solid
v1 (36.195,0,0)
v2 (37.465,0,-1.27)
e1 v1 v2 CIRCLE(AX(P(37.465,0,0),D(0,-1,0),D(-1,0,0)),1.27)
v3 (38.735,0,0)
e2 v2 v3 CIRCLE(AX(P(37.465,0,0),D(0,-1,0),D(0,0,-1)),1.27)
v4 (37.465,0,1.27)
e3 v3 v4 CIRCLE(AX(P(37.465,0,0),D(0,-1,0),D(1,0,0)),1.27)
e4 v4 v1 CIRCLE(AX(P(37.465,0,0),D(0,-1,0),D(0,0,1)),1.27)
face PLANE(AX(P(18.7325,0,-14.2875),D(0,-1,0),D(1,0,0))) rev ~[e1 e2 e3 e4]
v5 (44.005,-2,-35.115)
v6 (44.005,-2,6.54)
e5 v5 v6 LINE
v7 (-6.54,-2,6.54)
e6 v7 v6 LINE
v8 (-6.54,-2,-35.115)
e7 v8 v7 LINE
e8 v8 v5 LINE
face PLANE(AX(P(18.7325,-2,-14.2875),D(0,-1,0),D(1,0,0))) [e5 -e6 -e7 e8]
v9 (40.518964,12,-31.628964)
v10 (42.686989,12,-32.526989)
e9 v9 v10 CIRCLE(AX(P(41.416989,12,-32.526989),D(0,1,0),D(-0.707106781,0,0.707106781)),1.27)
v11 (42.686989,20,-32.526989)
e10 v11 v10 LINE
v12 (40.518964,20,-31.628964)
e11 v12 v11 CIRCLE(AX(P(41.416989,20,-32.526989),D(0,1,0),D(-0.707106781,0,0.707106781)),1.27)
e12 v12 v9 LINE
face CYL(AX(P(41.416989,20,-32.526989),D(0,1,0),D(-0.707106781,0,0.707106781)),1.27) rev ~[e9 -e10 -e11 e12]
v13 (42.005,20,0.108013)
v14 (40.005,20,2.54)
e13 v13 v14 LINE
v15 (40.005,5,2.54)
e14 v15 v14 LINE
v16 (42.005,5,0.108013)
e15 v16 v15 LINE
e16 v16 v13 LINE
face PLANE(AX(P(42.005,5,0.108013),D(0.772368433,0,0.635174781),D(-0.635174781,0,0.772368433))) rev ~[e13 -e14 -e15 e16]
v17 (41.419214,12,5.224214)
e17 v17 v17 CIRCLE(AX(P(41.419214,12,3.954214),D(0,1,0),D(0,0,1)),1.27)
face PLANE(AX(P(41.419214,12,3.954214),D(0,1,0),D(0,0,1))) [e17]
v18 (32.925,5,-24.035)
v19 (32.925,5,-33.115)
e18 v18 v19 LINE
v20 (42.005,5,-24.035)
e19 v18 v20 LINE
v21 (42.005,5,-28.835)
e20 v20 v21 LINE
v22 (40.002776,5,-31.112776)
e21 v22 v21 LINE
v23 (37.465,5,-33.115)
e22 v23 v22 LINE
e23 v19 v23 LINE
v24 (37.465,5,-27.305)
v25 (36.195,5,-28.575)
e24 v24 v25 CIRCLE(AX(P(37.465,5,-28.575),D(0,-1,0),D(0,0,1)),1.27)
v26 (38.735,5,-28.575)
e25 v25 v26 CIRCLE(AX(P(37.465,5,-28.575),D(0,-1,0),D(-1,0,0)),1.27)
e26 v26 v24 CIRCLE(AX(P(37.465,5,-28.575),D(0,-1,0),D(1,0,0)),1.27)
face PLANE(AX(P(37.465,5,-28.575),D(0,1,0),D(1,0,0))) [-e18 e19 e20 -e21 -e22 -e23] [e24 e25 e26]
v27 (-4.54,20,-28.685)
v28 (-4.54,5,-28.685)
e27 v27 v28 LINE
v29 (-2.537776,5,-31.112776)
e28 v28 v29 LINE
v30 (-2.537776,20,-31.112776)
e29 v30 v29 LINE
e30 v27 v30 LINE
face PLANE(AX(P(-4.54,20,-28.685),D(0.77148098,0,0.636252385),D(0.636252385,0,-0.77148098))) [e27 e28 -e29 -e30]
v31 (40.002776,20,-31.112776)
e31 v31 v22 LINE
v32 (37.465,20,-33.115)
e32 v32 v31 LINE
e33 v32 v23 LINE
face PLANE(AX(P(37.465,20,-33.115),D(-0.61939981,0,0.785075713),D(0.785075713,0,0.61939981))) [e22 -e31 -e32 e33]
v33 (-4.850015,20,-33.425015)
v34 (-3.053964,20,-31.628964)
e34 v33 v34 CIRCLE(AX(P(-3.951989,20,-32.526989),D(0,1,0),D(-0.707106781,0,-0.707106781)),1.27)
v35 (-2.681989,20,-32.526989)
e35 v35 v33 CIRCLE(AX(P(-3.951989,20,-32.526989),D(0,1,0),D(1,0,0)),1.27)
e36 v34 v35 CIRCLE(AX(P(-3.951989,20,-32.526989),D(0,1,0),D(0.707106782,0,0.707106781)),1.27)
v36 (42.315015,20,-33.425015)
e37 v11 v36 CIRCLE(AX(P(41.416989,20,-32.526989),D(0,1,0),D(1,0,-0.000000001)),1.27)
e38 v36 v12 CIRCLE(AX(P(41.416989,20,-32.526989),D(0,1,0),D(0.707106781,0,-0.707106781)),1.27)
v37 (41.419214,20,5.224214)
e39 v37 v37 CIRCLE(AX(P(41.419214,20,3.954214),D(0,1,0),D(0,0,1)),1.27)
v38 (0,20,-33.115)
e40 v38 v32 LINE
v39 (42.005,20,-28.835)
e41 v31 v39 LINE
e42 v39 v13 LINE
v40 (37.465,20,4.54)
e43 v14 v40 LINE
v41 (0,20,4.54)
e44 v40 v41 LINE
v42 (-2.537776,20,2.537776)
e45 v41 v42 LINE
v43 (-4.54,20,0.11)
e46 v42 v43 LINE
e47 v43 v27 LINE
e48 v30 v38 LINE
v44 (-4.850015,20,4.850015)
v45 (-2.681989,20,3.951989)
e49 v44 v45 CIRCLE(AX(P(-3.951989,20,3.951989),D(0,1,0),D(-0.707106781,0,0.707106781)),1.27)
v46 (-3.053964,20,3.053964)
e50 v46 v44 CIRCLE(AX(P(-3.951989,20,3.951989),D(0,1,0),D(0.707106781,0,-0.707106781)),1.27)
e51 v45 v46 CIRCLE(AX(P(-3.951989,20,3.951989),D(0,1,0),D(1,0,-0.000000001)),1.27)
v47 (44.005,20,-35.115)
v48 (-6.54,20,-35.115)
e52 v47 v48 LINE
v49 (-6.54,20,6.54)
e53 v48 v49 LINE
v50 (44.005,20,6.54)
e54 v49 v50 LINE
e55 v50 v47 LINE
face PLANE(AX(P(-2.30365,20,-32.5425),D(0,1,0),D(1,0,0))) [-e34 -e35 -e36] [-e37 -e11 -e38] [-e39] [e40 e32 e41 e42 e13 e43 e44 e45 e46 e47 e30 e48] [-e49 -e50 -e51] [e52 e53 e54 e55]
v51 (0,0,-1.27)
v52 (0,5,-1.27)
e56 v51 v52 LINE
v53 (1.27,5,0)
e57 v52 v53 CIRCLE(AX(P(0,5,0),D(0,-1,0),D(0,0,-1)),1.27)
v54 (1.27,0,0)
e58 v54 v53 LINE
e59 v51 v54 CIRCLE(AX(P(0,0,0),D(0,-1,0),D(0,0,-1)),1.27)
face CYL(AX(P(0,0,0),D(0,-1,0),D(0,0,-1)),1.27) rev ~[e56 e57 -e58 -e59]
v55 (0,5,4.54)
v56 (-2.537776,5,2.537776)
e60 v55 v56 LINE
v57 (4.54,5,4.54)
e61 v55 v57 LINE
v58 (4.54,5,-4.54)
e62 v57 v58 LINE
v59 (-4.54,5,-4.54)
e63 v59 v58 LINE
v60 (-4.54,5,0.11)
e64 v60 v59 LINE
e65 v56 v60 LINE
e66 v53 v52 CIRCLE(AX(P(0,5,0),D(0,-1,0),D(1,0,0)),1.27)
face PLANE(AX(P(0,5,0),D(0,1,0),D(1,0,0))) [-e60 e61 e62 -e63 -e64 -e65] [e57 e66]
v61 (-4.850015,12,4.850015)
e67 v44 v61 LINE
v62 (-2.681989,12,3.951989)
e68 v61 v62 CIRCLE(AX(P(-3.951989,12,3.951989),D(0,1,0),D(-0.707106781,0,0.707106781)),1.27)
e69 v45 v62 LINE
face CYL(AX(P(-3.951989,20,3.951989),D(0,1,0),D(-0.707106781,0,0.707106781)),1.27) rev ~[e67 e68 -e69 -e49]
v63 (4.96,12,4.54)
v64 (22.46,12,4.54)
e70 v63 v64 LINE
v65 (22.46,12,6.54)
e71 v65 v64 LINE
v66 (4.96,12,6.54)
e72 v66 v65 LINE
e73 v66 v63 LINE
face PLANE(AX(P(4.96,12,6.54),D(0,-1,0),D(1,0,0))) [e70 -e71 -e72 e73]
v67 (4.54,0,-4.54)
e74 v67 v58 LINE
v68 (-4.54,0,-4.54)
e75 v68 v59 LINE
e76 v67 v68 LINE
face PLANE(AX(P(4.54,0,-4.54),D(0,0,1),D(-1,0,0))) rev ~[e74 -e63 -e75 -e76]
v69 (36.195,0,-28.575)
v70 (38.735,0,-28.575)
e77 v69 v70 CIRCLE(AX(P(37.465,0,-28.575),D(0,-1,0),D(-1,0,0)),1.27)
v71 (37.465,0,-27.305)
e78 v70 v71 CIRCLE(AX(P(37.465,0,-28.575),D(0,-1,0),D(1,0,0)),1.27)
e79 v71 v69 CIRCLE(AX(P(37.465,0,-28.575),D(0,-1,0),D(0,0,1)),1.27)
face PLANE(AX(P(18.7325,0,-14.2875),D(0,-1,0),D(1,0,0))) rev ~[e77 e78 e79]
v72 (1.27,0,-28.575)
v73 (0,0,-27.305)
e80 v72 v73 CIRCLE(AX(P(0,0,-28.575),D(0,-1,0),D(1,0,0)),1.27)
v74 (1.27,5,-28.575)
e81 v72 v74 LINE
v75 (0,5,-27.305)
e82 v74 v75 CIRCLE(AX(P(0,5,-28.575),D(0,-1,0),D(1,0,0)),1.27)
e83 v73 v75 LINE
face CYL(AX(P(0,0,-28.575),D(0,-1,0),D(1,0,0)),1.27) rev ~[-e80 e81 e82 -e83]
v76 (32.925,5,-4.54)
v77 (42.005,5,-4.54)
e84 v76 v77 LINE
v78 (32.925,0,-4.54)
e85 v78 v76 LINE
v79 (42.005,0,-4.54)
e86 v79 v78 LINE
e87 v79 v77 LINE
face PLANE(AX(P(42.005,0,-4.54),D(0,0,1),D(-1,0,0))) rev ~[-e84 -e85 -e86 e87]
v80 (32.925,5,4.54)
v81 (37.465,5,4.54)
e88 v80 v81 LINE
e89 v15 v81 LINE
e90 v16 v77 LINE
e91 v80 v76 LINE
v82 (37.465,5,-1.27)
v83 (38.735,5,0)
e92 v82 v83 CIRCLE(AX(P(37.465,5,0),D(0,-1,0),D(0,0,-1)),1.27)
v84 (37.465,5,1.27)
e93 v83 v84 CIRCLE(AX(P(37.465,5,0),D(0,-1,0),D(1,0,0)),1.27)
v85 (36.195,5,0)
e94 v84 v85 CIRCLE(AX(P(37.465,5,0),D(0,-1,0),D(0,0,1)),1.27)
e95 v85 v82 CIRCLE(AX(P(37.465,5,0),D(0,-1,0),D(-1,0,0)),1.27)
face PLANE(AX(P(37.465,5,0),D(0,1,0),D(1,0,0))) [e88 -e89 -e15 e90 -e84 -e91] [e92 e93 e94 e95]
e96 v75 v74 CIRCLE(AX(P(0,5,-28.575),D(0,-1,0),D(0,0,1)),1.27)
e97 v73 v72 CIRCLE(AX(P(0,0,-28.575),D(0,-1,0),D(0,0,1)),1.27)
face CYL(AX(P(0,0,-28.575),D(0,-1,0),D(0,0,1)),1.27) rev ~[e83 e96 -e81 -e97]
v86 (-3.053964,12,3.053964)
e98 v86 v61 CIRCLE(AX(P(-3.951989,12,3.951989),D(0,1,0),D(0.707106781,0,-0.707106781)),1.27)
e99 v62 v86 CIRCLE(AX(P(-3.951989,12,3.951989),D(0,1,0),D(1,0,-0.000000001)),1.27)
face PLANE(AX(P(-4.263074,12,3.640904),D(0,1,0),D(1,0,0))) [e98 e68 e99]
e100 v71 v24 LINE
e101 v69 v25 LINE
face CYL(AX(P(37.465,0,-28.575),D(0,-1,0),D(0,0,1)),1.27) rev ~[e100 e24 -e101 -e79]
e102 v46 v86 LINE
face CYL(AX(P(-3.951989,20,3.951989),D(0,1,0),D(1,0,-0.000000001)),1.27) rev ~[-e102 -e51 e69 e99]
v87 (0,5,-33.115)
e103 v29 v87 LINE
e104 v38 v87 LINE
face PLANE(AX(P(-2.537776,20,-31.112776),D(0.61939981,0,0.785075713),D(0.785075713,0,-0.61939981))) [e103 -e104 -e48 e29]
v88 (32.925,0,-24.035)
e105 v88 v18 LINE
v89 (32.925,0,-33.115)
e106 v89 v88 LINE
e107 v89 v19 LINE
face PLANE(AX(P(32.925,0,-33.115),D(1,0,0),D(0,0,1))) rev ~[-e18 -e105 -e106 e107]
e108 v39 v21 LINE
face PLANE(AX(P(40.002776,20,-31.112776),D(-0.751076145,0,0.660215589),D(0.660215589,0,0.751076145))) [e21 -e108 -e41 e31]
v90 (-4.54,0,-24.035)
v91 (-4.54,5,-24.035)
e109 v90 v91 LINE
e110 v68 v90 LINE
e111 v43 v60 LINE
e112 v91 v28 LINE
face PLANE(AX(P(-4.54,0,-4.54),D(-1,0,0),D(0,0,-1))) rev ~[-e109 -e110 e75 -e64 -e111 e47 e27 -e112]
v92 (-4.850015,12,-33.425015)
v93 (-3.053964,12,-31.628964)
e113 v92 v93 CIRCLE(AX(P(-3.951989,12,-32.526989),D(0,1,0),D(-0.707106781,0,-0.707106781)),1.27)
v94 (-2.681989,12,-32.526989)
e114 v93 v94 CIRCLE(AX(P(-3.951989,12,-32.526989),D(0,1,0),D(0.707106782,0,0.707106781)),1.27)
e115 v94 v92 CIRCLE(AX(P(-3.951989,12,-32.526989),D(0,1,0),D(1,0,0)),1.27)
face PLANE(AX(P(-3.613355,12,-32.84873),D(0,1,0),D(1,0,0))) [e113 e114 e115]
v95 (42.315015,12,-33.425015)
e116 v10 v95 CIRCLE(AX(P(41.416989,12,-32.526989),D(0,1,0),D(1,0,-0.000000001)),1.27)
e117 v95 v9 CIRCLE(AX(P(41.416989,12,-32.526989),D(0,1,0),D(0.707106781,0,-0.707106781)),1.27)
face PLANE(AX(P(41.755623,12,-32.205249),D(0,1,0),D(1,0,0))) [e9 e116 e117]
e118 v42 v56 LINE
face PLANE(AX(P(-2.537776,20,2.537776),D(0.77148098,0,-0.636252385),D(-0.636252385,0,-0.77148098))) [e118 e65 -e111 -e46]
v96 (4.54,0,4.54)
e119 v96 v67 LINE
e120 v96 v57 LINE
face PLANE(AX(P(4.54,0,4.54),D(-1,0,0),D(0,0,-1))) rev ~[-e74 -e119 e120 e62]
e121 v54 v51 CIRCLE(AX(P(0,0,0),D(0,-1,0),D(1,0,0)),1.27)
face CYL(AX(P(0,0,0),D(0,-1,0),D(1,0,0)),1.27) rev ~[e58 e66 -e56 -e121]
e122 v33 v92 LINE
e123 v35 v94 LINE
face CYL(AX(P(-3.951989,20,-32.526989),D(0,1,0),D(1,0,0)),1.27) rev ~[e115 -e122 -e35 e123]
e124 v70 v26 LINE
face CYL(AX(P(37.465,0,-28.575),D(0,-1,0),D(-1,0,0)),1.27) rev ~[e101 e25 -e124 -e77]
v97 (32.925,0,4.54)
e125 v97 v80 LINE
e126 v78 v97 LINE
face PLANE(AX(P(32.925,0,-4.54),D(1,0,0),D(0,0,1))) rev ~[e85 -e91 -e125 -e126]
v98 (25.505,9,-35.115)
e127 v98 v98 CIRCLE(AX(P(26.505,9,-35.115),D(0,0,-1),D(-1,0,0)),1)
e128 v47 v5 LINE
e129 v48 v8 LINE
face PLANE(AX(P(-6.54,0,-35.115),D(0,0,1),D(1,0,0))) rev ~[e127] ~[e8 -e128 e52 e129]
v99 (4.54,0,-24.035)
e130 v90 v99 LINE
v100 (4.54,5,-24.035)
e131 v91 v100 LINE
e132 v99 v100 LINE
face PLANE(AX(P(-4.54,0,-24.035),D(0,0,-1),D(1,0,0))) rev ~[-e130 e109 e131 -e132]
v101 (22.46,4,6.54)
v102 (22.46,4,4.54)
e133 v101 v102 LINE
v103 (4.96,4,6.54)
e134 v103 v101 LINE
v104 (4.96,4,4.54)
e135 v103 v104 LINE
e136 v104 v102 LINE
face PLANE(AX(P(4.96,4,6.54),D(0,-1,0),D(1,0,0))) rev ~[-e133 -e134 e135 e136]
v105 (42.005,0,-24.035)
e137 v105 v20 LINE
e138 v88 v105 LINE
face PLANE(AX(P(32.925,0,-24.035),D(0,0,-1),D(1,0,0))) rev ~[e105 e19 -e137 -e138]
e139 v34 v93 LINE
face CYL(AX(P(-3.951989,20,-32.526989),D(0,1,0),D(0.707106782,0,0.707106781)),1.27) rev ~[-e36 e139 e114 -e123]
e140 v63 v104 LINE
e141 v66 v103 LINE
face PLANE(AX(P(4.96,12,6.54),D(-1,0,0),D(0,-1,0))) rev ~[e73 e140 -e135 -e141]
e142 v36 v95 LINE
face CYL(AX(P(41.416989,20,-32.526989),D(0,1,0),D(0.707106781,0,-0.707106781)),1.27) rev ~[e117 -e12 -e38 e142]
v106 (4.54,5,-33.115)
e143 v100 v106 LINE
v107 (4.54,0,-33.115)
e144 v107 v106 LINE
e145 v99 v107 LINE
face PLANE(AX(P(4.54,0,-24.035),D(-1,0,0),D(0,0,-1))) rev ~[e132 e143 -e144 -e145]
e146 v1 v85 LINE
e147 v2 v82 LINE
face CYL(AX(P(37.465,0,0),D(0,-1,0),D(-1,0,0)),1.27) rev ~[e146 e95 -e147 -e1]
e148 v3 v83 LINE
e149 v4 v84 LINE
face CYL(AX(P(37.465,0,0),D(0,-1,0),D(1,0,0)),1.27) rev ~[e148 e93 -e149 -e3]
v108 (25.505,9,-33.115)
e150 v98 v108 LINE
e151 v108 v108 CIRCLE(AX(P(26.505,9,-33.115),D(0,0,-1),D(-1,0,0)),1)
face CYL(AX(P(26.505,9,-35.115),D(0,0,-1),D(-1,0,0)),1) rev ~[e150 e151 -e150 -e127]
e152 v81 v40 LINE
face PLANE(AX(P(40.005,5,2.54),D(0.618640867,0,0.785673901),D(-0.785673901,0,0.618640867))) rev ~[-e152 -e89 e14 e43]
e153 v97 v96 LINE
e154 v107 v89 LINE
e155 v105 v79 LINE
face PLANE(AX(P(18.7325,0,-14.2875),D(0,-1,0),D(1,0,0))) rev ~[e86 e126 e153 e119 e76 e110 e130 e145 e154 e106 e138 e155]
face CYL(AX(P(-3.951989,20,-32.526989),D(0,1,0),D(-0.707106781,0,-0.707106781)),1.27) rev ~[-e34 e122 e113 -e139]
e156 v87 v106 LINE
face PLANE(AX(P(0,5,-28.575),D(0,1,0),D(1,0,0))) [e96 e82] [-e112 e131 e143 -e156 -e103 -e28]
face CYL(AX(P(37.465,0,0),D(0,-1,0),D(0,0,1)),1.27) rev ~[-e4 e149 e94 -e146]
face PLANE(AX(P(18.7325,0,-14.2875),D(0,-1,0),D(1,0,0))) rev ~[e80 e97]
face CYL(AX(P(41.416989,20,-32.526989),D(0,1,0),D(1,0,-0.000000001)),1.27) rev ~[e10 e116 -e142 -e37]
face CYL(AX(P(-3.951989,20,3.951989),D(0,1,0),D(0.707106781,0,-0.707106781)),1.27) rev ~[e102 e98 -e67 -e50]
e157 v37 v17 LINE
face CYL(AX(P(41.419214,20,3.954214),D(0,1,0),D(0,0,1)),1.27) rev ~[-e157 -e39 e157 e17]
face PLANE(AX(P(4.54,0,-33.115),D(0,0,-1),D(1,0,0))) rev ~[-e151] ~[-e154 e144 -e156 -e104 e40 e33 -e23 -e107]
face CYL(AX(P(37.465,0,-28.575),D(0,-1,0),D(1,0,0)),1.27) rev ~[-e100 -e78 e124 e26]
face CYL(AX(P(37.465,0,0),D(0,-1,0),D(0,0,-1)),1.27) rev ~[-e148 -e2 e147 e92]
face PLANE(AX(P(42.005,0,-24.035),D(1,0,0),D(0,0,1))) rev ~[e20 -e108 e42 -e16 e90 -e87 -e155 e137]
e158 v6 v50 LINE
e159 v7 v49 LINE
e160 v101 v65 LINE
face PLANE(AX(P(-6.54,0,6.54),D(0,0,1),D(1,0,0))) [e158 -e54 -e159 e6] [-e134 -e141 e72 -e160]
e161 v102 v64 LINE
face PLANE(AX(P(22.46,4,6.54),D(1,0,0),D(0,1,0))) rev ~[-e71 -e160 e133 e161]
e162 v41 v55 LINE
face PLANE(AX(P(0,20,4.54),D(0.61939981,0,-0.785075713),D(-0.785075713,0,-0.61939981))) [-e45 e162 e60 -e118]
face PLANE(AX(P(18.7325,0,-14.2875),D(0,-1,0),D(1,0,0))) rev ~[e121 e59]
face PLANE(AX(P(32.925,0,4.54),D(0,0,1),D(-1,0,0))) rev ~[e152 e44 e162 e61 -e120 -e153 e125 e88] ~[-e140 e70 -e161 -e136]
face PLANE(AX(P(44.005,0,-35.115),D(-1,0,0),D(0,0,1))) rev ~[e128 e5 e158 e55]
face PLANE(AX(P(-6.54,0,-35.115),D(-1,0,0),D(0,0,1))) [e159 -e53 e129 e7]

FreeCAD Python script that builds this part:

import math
import FreeCAD as App
import Part
import Sketcher

V = App.Vector

doc = App.newDocument("Part")
body = doc.addObject("PartDesign::Body", "Body")

sketch1 = doc.addObject("Sketcher::SketchObject", "Sketch")
body.addObject(sketch1)
sketch1.AttachmentSupport = (doc.XZ_Plane, [""])
sketch1.MapMode = "FlatFace"
sketch1.addGeometry([
    Part.LineSegment(V(44, -35.1, 0), V(-6.5, -35.1, 0)),
    Part.LineSegment(V(-6.5, -35.1, 0), V(-6.5, 6.5, 0)),
    Part.LineSegment(V(-6.5, 6.5, 0), V(44, 6.5, 0)),
    Part.LineSegment(V(44, 6.5, 0), V(44, -35.1, 0)),
    Part.LineSegment(V(42, -24, 0), V(42, -4.5, 0)),
    Part.LineSegment(V(42, -4.5, 0), V(32.9, -4.5, 0)),
    Part.LineSegment(V(32.9, -4.5, 0), V(32.9, 4.5, 0)),
    Part.LineSegment(V(32.9, 4.5, 0), V(4.5, 4.5, 0)),
    Part.LineSegment(V(4.5, 4.5, 0), V(4.5, -4.5, 0)),
    Part.LineSegment(V(4.5, -4.5, 0), V(-4.5, -4.5, 0)),
    Part.LineSegment(V(-4.5, -4.5, 0), V(-4.5, -24, 0)),
    Part.LineSegment(V(-4.5, -24, 0), V(4.5, -24, 0)),
    Part.LineSegment(V(4.5, -24, 0), V(4.5, -33.1, 0)),
    Part.LineSegment(V(4.5, -33.1, 0), V(32.9, -33.1, 0)),
    Part.LineSegment(V(32.9, -33.1, 0), V(32.9, -24, 0)),
    Part.LineSegment(V(32.9, -24, 0), V(42, -24, 0)),
    Part.ArcOfCircle(Part.Circle(V(37.5, 0, 0), V(0, 0, 1), 1.3), math.radians(0), math.radians(90)),
    Part.ArcOfCircle(Part.Circle(V(37.5, 0, 0), V(0, 0, 1), 1.3), math.radians(90), math.radians(180)),
    Part.ArcOfCircle(Part.Circle(V(37.5, 0, 0), V(0, 0, 1), 1.3), math.radians(180), math.radians(270)),
    Part.ArcOfCircle(Part.Circle(V(37.5, 0, 0), V(0, 0, 1), 1.3), math.radians(-90), math.radians(0)),
    Part.ArcOfCircle(Part.Circle(V(37.5, -28.6, 0), V(0, 0, 1), 1.3), math.radians(0), math.radians(90)),
    Part.ArcOfCircle(Part.Circle(V(37.5, -28.6, 0), V(0, 0, 1), 1.3), math.radians(90), math.radians(180)),
    Part.ArcOfCircle(Part.Circle(V(37.5, -28.6, 0), V(0, 0, 1), 1.3), math.radians(180), math.radians(360)),
    Part.ArcOfCircle(Part.Circle(V(0, -28.6, 0), V(0, 0, 1), 1.3), math.radians(90), math.radians(360)),
    Part.ArcOfCircle(Part.Circle(V(0, -28.6, 0), V(0, 0, 1), 1.3), math.radians(0), math.radians(90)),
    Part.ArcOfCircle(Part.Circle(V(0, 0, 0), V(0, 0, 1), 1.3), math.radians(0), math.radians(270)),
    Part.ArcOfCircle(Part.Circle(V(0, 0, 0), V(0, 0, 1), 1.3), math.radians(-90), math.radians(0)),
], False)
sketch1.addConstraint([
    Sketcher.Constraint("Coincident", 0, 2, 1, 1),
    Sketcher.Constraint("Coincident", 1, 2, 2, 1),
    Sketcher.Constraint("Coincident", 2, 2, 3, 1),
    Sketcher.Constraint("Coincident", 3, 2, 0, 1),
    Sketcher.Constraint("Coincident", 4, 2, 5, 1),
    Sketcher.Constraint("Coincident", 5, 2, 6, 1),
    Sketcher.Constraint("Coincident", 6, 2, 7, 1),
    Sketcher.Constraint("Coincident", 7, 2, 8, 1),
    Sketcher.Constraint("Coincident", 8, 2, 9, 1),
    Sketcher.Constraint("Coincident", 9, 2, 10, 1),
    Sketcher.Constraint("Coincident", 10, 2, 11, 1),
    Sketcher.Constraint("Coincident", 11, 2, 12, 1),
    Sketcher.Constraint("Coincident", 12, 2, 13, 1),
    Sketcher.Constraint("Coincident", 13, 2, 14, 1),
    Sketcher.Constraint("Coincident", 14, 2, 15, 1),
    Sketcher.Constraint("Coincident", 15, 2, 4, 1),
    Sketcher.Constraint("Tangent", 16, 2, 17, 1),
    Sketcher.Constraint("Tangent", 17, 2, 18, 1),
    Sketcher.Constraint("Tangent", 18, 2, 19, 1),
    Sketcher.Constraint("Tangent", 19, 2, 16, 1),
    Sketcher.Constraint("Tangent", 20, 2, 21, 1),
    Sketcher.Constraint("Tangent", 21, 2, 22, 1),
    Sketcher.Constraint("Tangent", 22, 2, 20, 1),
    Sketcher.Constraint("Tangent", 23, 1, 24, 2),
    Sketcher.Constraint("Coincident", 24, 1, 23, 2),
    Sketcher.Constraint("Tangent", 25, 1, 26, 2),
    Sketcher.Constraint("Coincident", 26, 1, 25, 2),
    Sketcher.Constraint("Horizontal", 0),
    Sketcher.Constraint("Vertical", 1),
    Sketcher.Constraint("Horizontal", 2),
    Sketcher.Constraint("Vertical", 3),
    Sketcher.Constraint("Vertical", 4),
    Sketcher.Constraint("Horizontal", 5),
    Sketcher.Constraint("Vertical", 6),
    Sketcher.Constraint("Horizontal", 7),
    Sketcher.Constraint("Vertical", 8),
    Sketcher.Constraint("Horizontal", 9),
    Sketcher.Constraint("Vertical", 10),
    Sketcher.Constraint("Horizontal", 11),
    Sketcher.Constraint("Vertical", 12),
    Sketcher.Constraint("Horizontal", 13),
    Sketcher.Constraint("Vertical", 14),
    Sketcher.Constraint("Horizontal", 15),
    Sketcher.Constraint("Coincident", 25, 3, -1, 1),
    Sketcher.Constraint("Equal", 16, 17),
    Sketcher.Constraint("Equal", 19, 20),
    Sketcher.Constraint("Equal", 22, 23),
    Sketcher.Constraint("Equal", 24, 25),
    Sketcher.Constraint("Symmetric", 7, 2, 9, 2, -1, 1),
    Sketcher.Constraint("Symmetric", 16, 2, 18, 2, -1),
    Sketcher.Constraint("PointOnObject", 23, 3, -2),
    Sketcher.Constraint("PointOnObject", 17, 2, -1),
    Sketcher.Constraint("PointOnObject", 19, 2, -1),
    Sketcher.Constraint("PointOnObject", 23, 1, -2),
    Sketcher.Constraint("PointOnObject", 25, 1, -1),
    Sketcher.Constraint("PointOnObject", 26, 1, -2),
    Sketcher.Constraint("Horizontal", 22, 3, 23, 3),
    Sketcher.Constraint("Horizontal", 5, 2, 8, 2),
    Sketcher.Constraint("Horizontal", 11, 2, 14, 2),
    Sketcher.Constraint("Horizontal", 24, 3, 21, 2),
    Sketcher.Constraint("Horizontal", 21, 2, 22, 2),
    Sketcher.Constraint("Horizontal", 22, 2, 24, 1),
    Sketcher.Constraint("Vertical", 19, 3, 20, 3),
    Sketcher.Constraint("Vertical", 8, 2, 11, 2),
    Sketcher.Constraint("Vertical", 6, 2, 13, 2),
    Sketcher.Constraint("Vertical", 22, 3, 16, 2),
    Sketcher.Constraint("Vertical", 18, 2, 20, 2),
    Sketcher.Constraint("Equal", 5, 9),
    Sketcher.Constraint("Equal", 15, 6),
    Sketcher.Constraint("Equal", 8, 12),
    Sketcher.Constraint("Radius", 16, 1.27),
    Sketcher.Constraint("DistanceX", 4, 2, 2, 2, 2.0),
    Sketcher.Constraint("DistanceY", 7, 2, 1, 2, 2.0),
    Sketcher.Constraint("DistanceX", 1, 2, 9, 2, 2.0),
    Sketcher.Constraint("DistanceY", 0, 2, 12, 2, 2.0),
    Sketcher.Constraint("DistanceX", 5, 2, 5, 1, 9.08),
    Sketcher.Constraint("DistanceX", 0, 2, 0, 1, 50.545),
    Sketcher.Constraint("DistanceY", 1, 1, 1, 2, 41.655),
    Sketcher.Constraint("DistanceY", 0, 2, 23, 3, 6.54),
    Sketcher.Constraint("DistanceX", 16, 3, 2, 2, 6.54),
])
pad1 = doc.addObject("PartDesign::Pad", "Pad")
body.addObject(pad1)
pad1.Profile = sketch1
pad1.Length = 20
pad1.Reversed = True

sketch2 = doc.addObject("Sketcher::SketchObject", "Sketch001")
body.addObject(sketch2)
sketch2.AttachmentSupport = (doc.XZ_Plane, [""])
sketch2.MapMode = "FlatFace"
sketch2.AttachmentOffset = App.Placement(V(0, 0, -20), App.Rotation())
sketch2.addGeometry([
    Part.LineSegment(V(33, -33, 0), V(33, -24, 0)),
    Part.LineSegment(V(33, -24, 0), V(42, -24, 0)),
    Part.LineSegment(V(42, -24, 0), V(42, -33, 0)),
    Part.LineSegment(V(42, -33, 0), V(33, -33, 0)),
], False)
sketch2.addConstraint([
    Sketcher.Constraint("Coincident", 0, 2, 1, 1),
    Sketcher.Constraint("Coincident", 1, 2, 2, 1),
    Sketcher.Constraint("Coincident", 2, 2, 3, 1),
    Sketcher.Constraint("Coincident", 3, 2, 0, 1),
    Sketcher.Constraint("Vertical", 0),
    Sketcher.Constraint("Horizontal", 1),
    Sketcher.Constraint("Vertical", 2),
    Sketcher.Constraint("Horizontal", 3),
    Sketcher.Constraint("Equal", 3, 0),
    Sketcher.Constraint("DistanceX", 1, 1, 1, 2, 9.08),
    Sketcher.Constraint("DistanceX", -1, 1, 0, 2, 32.925),
    Sketcher.Constraint("DistanceY", 0, 2, -1, 1, 24.035),
])
pocket1 = doc.addObject("PartDesign::Pocket", "Pocket")
body.addObject(pocket1)
pocket1.Profile = sketch2
pocket1.Length = 15
pocket1.Reversed = True

sketch3 = doc.addObject("Sketcher::SketchObject", "Sketch002")
body.addObject(sketch3)
sketch3.AttachmentSupport = (doc.XZ_Plane, [""])
sketch3.MapMode = "FlatFace"
sketch3.AttachmentOffset = App.Placement(V(0, 0, -20), App.Rotation())
sketch3.addGeometry([
    Part.LineSegment(V(-5, -33, 0), V(-5, -24, 0)),
    Part.LineSegment(V(-5, -24, 0), V(5, -24, 0)),
    Part.LineSegment(V(5, -24, 0), V(5, -33, 0)),
    Part.LineSegment(V(5, -33, 0), V(-5, -33, 0)),
], False)
sketch3.addConstraint([
    Sketcher.Constraint("Coincident", 0, 2, 1, 1),
    Sketcher.Constraint("Coincident", 1, 2, 2, 1),
    Sketcher.Constraint("Coincident", 2, 2, 3, 1),
    Sketcher.Constraint("Coincident", 3, 2, 0, 1),
    Sketcher.Constraint("Vertical", 0),
    Sketcher.Constraint("Horizontal", 1),
    Sketcher.Constraint("Vertical", 2),
    Sketcher.Constraint("Horizontal", 3),
    Sketcher.Constraint("Equal", 3, 0),
    Sketcher.Constraint("DistanceX", 1, 1, 1, 2, 9.08),
    Sketcher.Constraint("DistanceX", 0, 2, -1, 1, 4.54),
    Sketcher.Constraint("DistanceY", 0, 2, -1, 1, 24.035),
])
pocket2 = doc.addObject("PartDesign::Pocket", "Pocket001")
body.addObject(pocket2)
pocket2.Profile = sketch3
pocket2.Length = 15
pocket2.Reversed = True

sketch4 = doc.addObject("Sketcher::SketchObject", "Sketch003")
body.addObject(sketch4)
sketch4.AttachmentSupport = (doc.XZ_Plane, [""])
sketch4.MapMode = "FlatFace"
sketch4.AttachmentOffset = App.Placement(V(0, 0, -20), App.Rotation())
sketch4.addGeometry([
    Part.LineSegment(V(33, -5, 0), V(33, 5, 0)),
    Part.LineSegment(V(33, 5, 0), V(42, 5, 0)),
    Part.LineSegment(V(42, 5, 0), V(42, -5, 0)),
    Part.LineSegment(V(42, -5, 0), V(33, -5, 0)),
], False)
sketch4.addConstraint([
    Sketcher.Constraint("Coincident", 0, 2, 1, 1),
    Sketcher.Constraint("Coincident", 1, 2, 2, 1),
    Sketcher.Constraint("Coincident", 2, 2, 3, 1),
    Sketcher.Constraint("Coincident", 3, 2, 0, 1),
    Sketcher.Constraint("Vertical", 0),
    Sketcher.Constraint("Horizontal", 1),
    Sketcher.Constraint("Vertical", 2),
    Sketcher.Constraint("Horizontal", 3),
    Sketcher.Constraint("Equal", 3, 0),
    Sketcher.Constraint("DistanceX", 1, 1, 1, 2, 9.08),
    Sketcher.Constraint("DistanceY", -1, 1, 0, 2, 4.54),
    Sketcher.Constraint("DistanceX", -1, 1, 0, 2, 32.925),
])
pocket3 = doc.addObject("PartDesign::Pocket", "Pocket002")
body.addObject(pocket3)
pocket3.Profile = sketch4
pocket3.Length = 15
pocket3.Reversed = True

sketch5 = doc.addObject("Sketcher::SketchObject", "Sketch004")
body.addObject(sketch5)
sketch5.AttachmentSupport = (doc.XZ_Plane, [""])
sketch5.MapMode = "FlatFace"
sketch5.AttachmentOffset = App.Placement(V(0, 0, -20), App.Rotation())
sketch5.addGeometry([
    Part.LineSegment(V(-5, -5, 0), V(-5, 5, 0)),
    Part.LineSegment(V(-5, 5, 0), V(5, 5, 0)),
    Part.LineSegment(V(5, 5, 0), V(5, -5, 0)),
    Part.LineSegment(V(5, -5, 0), V(-5, -5, 0)),
], False)
sketch5.addConstraint([
    Sketcher.Constraint("Coincident", 0, 2, 1, 1),
    Sketcher.Constraint("Coincident", 1, 2, 2, 1),
    Sketcher.Constraint("Coincident", 2, 2, 3, 1),
    Sketcher.Constraint("Coincident", 3, 2, 0, 1),
    Sketcher.Constraint("Vertical", 0),
    Sketcher.Constraint("Horizontal", 1),
    Sketcher.Constraint("Vertical", 2),
    Sketcher.Constraint("Horizontal", 3),
    Sketcher.Constraint("Symmetric", 0, 2, 2, 2, -1, 1),
    Sketcher.Constraint("Equal", 3, 0),
    Sketcher.Constraint("DistanceX", 1, 1, 1, 2, 9.08),
])
pocket4 = doc.addObject("PartDesign::Pocket", "Pocket003")
body.addObject(pocket4)
pocket4.Profile = sketch5
pocket4.Length = 15
pocket4.Reversed = True

sketch6 = doc.addObject("Sketcher::SketchObject", "Sketch005")
body.addObject(sketch6)
sketch6.AttachmentSupport = (doc.XZ_Plane, [""])
sketch6.MapMode = "FlatFace"
sketch6.addGeometry([
    Part.LineSegment(V(-7, 7, 0), V(-7, -35, 0)),
    Part.LineSegment(V(-7, -35, 0), V(44, -35, 0)),
    Part.LineSegment(V(44, -35, 0), V(44, 7, 0)),
    Part.LineSegment(V(44, 7, 0), V(-7, 7, 0)),
], False)
sketch6.addConstraint([
    Sketcher.Constraint("Coincident", 0, 2, 1, 1),
    Sketcher.Constraint("Coincident", 1, 2, 2, 1),
    Sketcher.Constraint("Coincident", 2, 2, 3, 1),
    Sketcher.Constraint("Coincident", 3, 2, 0, 1),
    Sketcher.Constraint("Vertical", 0),
    Sketcher.Constraint("Horizontal", 1),
    Sketcher.Constraint("Vertical", 2),
    Sketcher.Constraint("Horizontal", 3),
    Sketcher.Constraint("DistanceX", 1, 1, 1, 2, 50.545),
    Sketcher.Constraint("DistanceY", 0, 2, 0, 1, 41.655),
    Sketcher.Constraint("DistanceX", 0, 2, -1, 1, 6.54),
    Sketcher.Constraint("DistanceY", -1, 1, 2, 2, 6.54),
])
pad2 = doc.addObject("PartDesign::Pad", "Pad001")
body.addObject(pad2)
pad2.Profile = sketch6
pad2.Length = 2

sketch7 = doc.addObject("Sketcher::SketchObject", "Sketch006")
body.addObject(sketch7)
sketch7.AttachmentSupport = (doc.XY_Plane, [""])
sketch7.MapMode = "FlatFace"
sketch7.AttachmentOffset = App.Placement(V(0, 0, 6.54), App.Rotation())
sketch7.addGeometry([
    Part.LineSegment(V(5, 12, 0), V(5, 4, 0)),
    Part.LineSegment(V(5, 4, 0), V(22, 4, 0)),
    Part.LineSegment(V(22, 4, 0), V(22, 12, 0)),
    Part.LineSegment(V(22, 12, 0), V(5, 12, 0)),
], False)
sketch7.addConstraint([
    Sketcher.Constraint("Coincident", 0, 2, 1, 1),
    Sketcher.Constraint("Coincident", 1, 2, 2, 1),
    Sketcher.Constraint("Coincident", 2, 2, 3, 1),
    Sketcher.Constraint("Coincident", 3, 2, 0, 1),
    Sketcher.Constraint("Vertical", 0),
    Sketcher.Constraint("Horizontal", 1),
    Sketcher.Constraint("Vertical", 2),
    Sketcher.Constraint("Horizontal", 3),
    Sketcher.Constraint("DistanceY", 0, 2, 0, 1, 8.0),
    Sketcher.Constraint("DistanceX", 1, 1, 1, 2, 17.5),
    Sketcher.Constraint("DistanceY", -1, 1, 0, 2, 4.0),
    Sketcher.Constraint("DistanceX", -1, 1, 0, 2, 4.96),
])
pocket5 = doc.addObject("PartDesign::Pocket", "Pocket004")
body.addObject(pocket5)
pocket5.Profile = sketch7
pocket5.Length = 10

sketch8 = doc.addObject("Sketcher::SketchObject", "Sketch007")
body.addObject(sketch8)
sketch8.AttachmentSupport = (doc.XZ_Plane, [""])
sketch8.MapMode = "FlatFace"
sketch8.AttachmentOffset = App.Placement(V(0, 0, -5), App.Rotation())
sketch8.addGeometry([
    Part.LineSegment(V(42, 0.1, 0), V(40, 2.5, 0)),
    Part.LineSegment(V(40, 2.5, 0), V(37.5, 4.5, 0)),
    Part.LineSegment(V(37.5, 4.5, 0), V(42, 4.5, 0)),
    Part.LineSegment(V(42, 4.5, 0), V(42, 0.1, 0)),
], False)
sketch8.addConstraint([
    Sketcher.Constraint("Coincident", 0, 2, 1, 1),
    Sketcher.Constraint("Coincident", 1, 2, 2, 1),
    Sketcher.Constraint("Coincident", 2, 2, 3, 1),
    Sketcher.Constraint("Coincident", 3, 2, 0, 1),
    Sketcher.Constraint("Horizontal", 2),
    Sketcher.Constraint("Vertical", 3),
    Sketcher.Constraint("DistanceY", 0, 2, 1, 2, 2.0),
    Sketcher.Constraint("DistanceX", 0, 2, 2, 2, 2.0),
    Sketcher.Constraint("DistanceX", 2, 1, 2, 2, 4.54),
    Sketcher.Constraint("DistanceY", -1, 1, 0, 2, 2.54),
    Sketcher.Constraint("DistanceX", -1, 1, 0, 2, 40.005),
    Sketcher.Constraint("Distance", 0, 3.14874),
])
pad3 = doc.addObject("PartDesign::Pad", "Pad002")
body.addObject(pad3)
pad3.Profile = sketch8
pad3.Length = 15
pad3.Reversed = True

sketch9 = doc.addObject("Sketcher::SketchObject", "Sketch008")
body.addObject(sketch9)
sketch9.AttachmentSupport = (doc.XZ_Plane, [""])
sketch9.MapMode = "FlatFace"
sketch9.AttachmentOffset = App.Placement(V(0, 0, -20), App.Rotation())
sketch9.addGeometry(Part.Circle(V(41.4, 4, 0), V(0, 0, 1), 1.3), False)
sketch9.addConstraint([
    Sketcher.Constraint("Diameter", 0, 2.54),
    Sketcher.Constraint("DistanceX", -1, 1, 0, 3, 41.419214),
    Sketcher.Constraint("DistanceY", -1, 1, 0, 3, 3.954214),
])
pocket6 = doc.addObject("PartDesign::Pocket", "Pocket005")
body.addObject(pocket6)
pocket6.Profile = sketch9
pocket6.Length = 8
pocket6.Reversed = True

sketch10 = doc.addObject("Sketcher::SketchObject", "Sketch009")
body.addObject(sketch10)
sketch10.AttachmentSupport = (doc.XZ_Plane, [""])
sketch10.MapMode = "FlatFace"
sketch10.AttachmentOffset = App.Placement(V(0, 0, -20), App.Rotation())
sketch10.addGeometry([
    Part.LineSegment(V(37.5, -33.1, 0), V(40, -31.1, 0)),
    Part.LineSegment(V(40, -31.1, 0), V(42, -28.8, 0)),
    Part.LineSegment(V(42, -28.8, 0), V(42, -32.5, 0)),
    Part.LineSegment(V(42, -32.5, 0), V(42.7, -32.5, 0)),
    Part.ArcOfCircle(Part.Circle(V(41.4, -32.5, 0), V(0, 0, 1), 1.3), math.radians(-45), math.radians(0)),
    Part.ArcOfCircle(Part.Circle(V(41.4, -32.5, 0), V(0, 0, 1), 1.3), math.radians(-90), math.radians(-45)),
    Part.LineSegment(V(41.4, -33.8, 0), V(41.4, -33.1, 0)),
    Part.LineSegment(V(41.4, -33.1, 0), V(37.5, -33.1, 0)),
], False)
sketch10.addConstraint([
    Sketcher.Constraint("Coincident", 0, 2, 1, 1),
    Sketcher.Constraint("Coincident", 1, 2, 2, 1),
    Sketcher.Constraint("Coincident", 2, 2, 3, 1),
    Sketcher.Constraint("Coincident", 3, 2, 4, 2),
    Sketcher.Constraint("Tangent", 4, 1, 5, 2),
    Sketcher.Constraint("Coincident", 5, 1, 6, 1),
    Sketcher.Constraint("Coincident", 6, 2, 7, 1),
    Sketcher.Constraint("Coincident", 7, 2, 0, 1),
    Sketcher.Constraint("Vertical", 2),
    Sketcher.Constraint("Horizontal", 3),
    Sketcher.Constraint("Vertical", 6),
    Sketcher.Constraint("Horizontal", 7),
    Sketcher.Constraint("Equal", 4, 5),
    Sketcher.Constraint("Horizontal", 5, 3, 2, 2),
    Sketcher.Constraint("Vertical", 4, 3, 5, 1),
    Sketcher.Constraint("Equal", 3, 6),
    Sketcher.Constraint("Radius", 4, 1.27),
    Sketcher.Constraint("DistanceX", 3, 1, 3, 2, 0.68),
    Sketcher.Constraint("DistanceX", 7, 2, 7, 1, 3.95),
    Sketcher.Constraint("DistanceY", 2, 2, 2, 1, 3.69),
    Sketcher.Constraint("DistanceX", -1, 1, 4, 3, 41.415),
    Sketcher.Constraint("DistanceY", 4, 3, -1, 1, 32.525),
    Sketcher.Constraint("DistanceX", 0, 2, 4, 1, 2.31025),
    Sketcher.Constraint("DistanceY", 4, 1, 0, 2, 2.31025),
    Sketcher.Constraint("Distance", 0, 3.232523),
])
pad4 = doc.addObject("PartDesign::Pad", "Pad003")
body.addObject(pad4)
pad4.Profile = sketch10
pad4.Length = 18

sketch11 = doc.addObject("Sketcher::SketchObject", "Sketch010")
body.addObject(sketch11)
sketch11.AttachmentSupport = (doc.XZ_Plane, [""])
sketch11.MapMode = "FlatFace"
sketch11.AttachmentOffset = App.Placement(V(0, 0, -20), App.Rotation())
sketch11.addGeometry([
    Part.ArcOfCircle(Part.Circle(V(41.4, -32.5, 0), V(0, 0, 1), 1.3), math.radians(-45), math.radians(0)),
    Part.ArcOfCircle(Part.Circle(V(41.4, -32.5, 0), V(0, 0, 1), 1.3), math.radians(135), math.radians(315)),
    Part.ArcOfCircle(Part.Circle(V(41.4, -32.5, 0), V(0, 0, 1), 1.3), math.radians(0), math.radians(135)),
], False)
sketch11.addConstraint([
    Sketcher.Constraint("Tangent", 0, 1, 1, 2),
    Sketcher.Constraint("Tangent", 1, 1, 2, 2),
    Sketcher.Constraint("Tangent", 2, 1, 0, 2),
    Sketcher.Constraint("Horizontal", 1, 3, 2, 1),
    Sketcher.Constraint("Radius", 0, 1.27),
    Sketcher.Constraint("DistanceX", -1, 1, 0, 3, 41.416989),
    Sketcher.Constraint("DistanceY", 0, 3, -1, 1, 32.526989),
    Sketcher.Constraint("DistanceX", 1, 1, 0, 1, 1.796051),
    Sketcher.Constraint("DistanceX", -1, 1, 0, 1, 42.315015),
])
pocket7 = doc.addObject("PartDesign::Pocket", "Pocket006")
body.addObject(pocket7)
pocket7.Profile = sketch11
pocket7.Length = 8
pocket7.Reversed = True

sketch12 = doc.addObject("Sketcher::SketchObject", "Sketch011")
body.addObject(sketch12)
sketch12.AttachmentSupport = (doc.XZ_Plane, [""])
sketch12.MapMode = "FlatFace"
sketch12.AttachmentOffset = App.Placement(V(0, 0, -20), App.Rotation())
sketch12.addGeometry([
    Part.LineSegment(V(-4.5, 0.1, 0), V(-4.5, 4.5, 0)),
    Part.LineSegment(V(-4.5, 4.5, 0), V(0, 4.5, 0)),
    Part.LineSegment(V(0, 4.5, 0), V(-2.5, 2.5, 0)),
    Part.LineSegment(V(-2.5, 2.5, 0), V(-4.5, 0.1, 0)),
], False)
sketch12.addConstraint([
    Sketcher.Constraint("Coincident", 0, 2, 1, 1),
    Sketcher.Constraint("Coincident", 1, 2, 2, 1),
    Sketcher.Constraint("Coincident", 2, 2, 3, 1),
    Sketcher.Constraint("Coincident", 3, 2, 0, 1),
    Sketcher.Constraint("Vertical", 0),
    Sketcher.Constraint("Horizontal", 1),
    Sketcher.Constraint("PointOnObject", 1, 2, -2),
    Sketcher.Constraint("DistanceX", 1, 1, 1, 2, 4.54),
    Sketcher.Constraint("DistanceY", 0, 1, 0, 2, 4.43),
    Sketcher.Constraint("DistanceY", -1, 1, 0, 2, 4.54),
    Sketcher.Constraint("Distance", 2, 3.232523),
    Sketcher.Constraint("Distance", 3, 3.146903),
])
pad5 = doc.addObject("PartDesign::Pad", "Pad004")
body.addObject(pad5)
pad5.Profile = sketch12
pad5.Length = 18

sketch13 = doc.addObject("Sketcher::SketchObject", "Sketch012")
body.addObject(sketch13)
sketch13.AttachmentSupport = (doc.XZ_Plane, [""])
sketch13.MapMode = "FlatFace"
sketch13.AttachmentOffset = App.Placement(V(0, 0, -20), App.Rotation())
sketch13.addGeometry([
    Part.ArcOfCircle(Part.Circle(V(-4, 4, 0), V(0, 0, 1), 1.3), math.radians(135), math.radians(315)),
    Part.ArcOfCircle(Part.Circle(V(-4, 4, 0), V(0, 0, 1), 1.3), math.radians(0), math.radians(135)),
    Part.ArcOfCircle(Part.Circle(V(-4, 4, 0), V(0, 0, 1), 1.3), math.radians(-45), math.radians(0)),
], False)
sketch13.addConstraint([
    Sketcher.Constraint("Tangent", 0, 1, 1, 2),
    Sketcher.Constraint("Tangent", 1, 1, 2, 2),
    Sketcher.Constraint("Tangent", 2, 1, 0, 2),
    Sketcher.Constraint("Horizontal", 2, 3, 1, 1),
    Sketcher.Constraint("Radius", 0, 1.27),
    Sketcher.Constraint("DistanceX", 0, 3, -1, 1, 3.951989),
    Sketcher.Constraint("DistanceY", -1, 1, 0, 3, 3.951989),
    Sketcher.Constraint("DistanceX", 0, 1, 2, 1, 1.796051),
    Sketcher.Constraint("DistanceX", 0, 1, -1, 1, 4.850015),
])
pocket8 = doc.addObject("PartDesign::Pocket", "Pocket007")
body.addObject(pocket8)
pocket8.Profile = sketch13
pocket8.Length = 8
pocket8.Reversed = True

sketch14 = doc.addObject("Sketcher::SketchObject", "Sketch013")
body.addObject(sketch14)
sketch14.AttachmentSupport = (doc.XZ_Plane, [""])
sketch14.MapMode = "FlatFace"
sketch14.AttachmentOffset = App.Placement(V(0, 0, -20), App.Rotation())
sketch14.addGeometry([
    Part.LineSegment(V(0, -33.1, 0), V(-4.5, -33.1, 0)),
    Part.LineSegment(V(-4.5, -33.1, 0), V(-4.5, -28.7, 0)),
    Part.LineSegment(V(-4.5, -28.7, 0), V(-2.5, -31.1, 0)),
    Part.LineSegment(V(-2.5, -31.1, 0), V(0, -33.1, 0)),
], False)
sketch14.addConstraint([
    Sketcher.Constraint("Coincident", 0, 2, 1, 1),
    Sketcher.Constraint("Coincident", 1, 2, 2, 1),
    Sketcher.Constraint("Coincident", 2, 2, 3, 1),
    Sketcher.Constraint("Coincident", 3, 2, 0, 1),
    Sketcher.Constraint("Horizontal", 0),
    Sketcher.Constraint("Vertical", 1),
    Sketcher.Constraint("PointOnObject", 3, 2, -2),
    Sketcher.Constraint("DistanceX", 0, 2, 0, 1, 4.54),
    Sketcher.Constraint("DistanceY", 1, 1, 1, 2, 4.43),
    Sketcher.Constraint("DistanceY", 0, 2, -1, 1, 33.115),
    Sketcher.Constraint("Distance", 2, 3.146903),
    Sketcher.Constraint("Distance", 3, 3.232523),
])
pad6 = doc.addObject("PartDesign::Pad", "Pad005")
body.addObject(pad6)
pad6.Profile = sketch14
pad6.Length = 18

sketch15 = doc.addObject("Sketcher::SketchObject", "Sketch014")
body.addObject(sketch15)
sketch15.AttachmentSupport = (doc.XZ_Plane, [""])
sketch15.MapMode = "FlatFace"
sketch15.AttachmentOffset = App.Placement(V(0, 0, -20), App.Rotation())
sketch15.addGeometry([
    Part.ArcOfCircle(Part.Circle(V(-4, -32.5, 0), V(0, 0, 1), 1.3), math.radians(-135), math.radians(0)),
    Part.ArcOfCircle(Part.Circle(V(-4, -32.5, 0), V(0, 0, 1), 1.3), math.radians(45), math.radians(225)),
    Part.ArcOfCircle(Part.Circle(V(-4, -32.5, 0), V(0, 0, 1), 1.3), math.radians(0), math.radians(45)),
], False)
sketch15.addConstraint([
    Sketcher.Constraint("Tangent", 0, 1, 1, 2),
    Sketcher.Constraint("Tangent", 1, 1, 2, 2),
    Sketcher.Constraint("Tangent", 2, 1, 0, 2),
    Sketcher.Constraint("Horizontal", 1, 3, 2, 1),
    Sketcher.Constraint("Radius", 0, 1.27),
    Sketcher.Constraint("DistanceX", 0, 3, -1, 1, 3.951989),
    Sketcher.Constraint("DistanceY", 0, 3, -1, 1, 32.526989),
    Sketcher.Constraint("DistanceX", 0, 1, 1, 1, 1.796051),
    Sketcher.Constraint("DistanceX", 0, 1, -1, 1, 4.850015),
])
pocket9 = doc.addObject("PartDesign::Pocket", "Pocket008")
body.addObject(pocket9)
pocket9.Profile = sketch15
pocket9.Length = 8
pocket9.Reversed = True

sketch16 = doc.addObject("Sketcher::SketchObject", "Sketch015")
body.addObject(sketch16)
sketch16.AttachmentSupport = (doc.XY_Plane, [""])
sketch16.MapMode = "FlatFace"
sketch16.AttachmentOffset = App.Placement(V(0, 0, -35.115), App.Rotation())
sketch16.addGeometry(Part.Circle(V(26.5, 9, 0), V(0, 0, 1), 1), False)
sketch16.addConstraint([
    Sketcher.Constraint("Diameter", 0, 2.0),
    Sketcher.Constraint("DistanceY", -1, 1, 0, 3, 9.0),
    Sketcher.Constraint("DistanceX", -1, 1, 0, 3, 26.505),
])
pocket10 = doc.addObject("PartDesign::Pocket", "Pocket009")
body.addObject(pocket10)
pocket10.Profile = sketch16
pocket10.Length = 8
pocket10.Reversed = True

doc.recompute()
